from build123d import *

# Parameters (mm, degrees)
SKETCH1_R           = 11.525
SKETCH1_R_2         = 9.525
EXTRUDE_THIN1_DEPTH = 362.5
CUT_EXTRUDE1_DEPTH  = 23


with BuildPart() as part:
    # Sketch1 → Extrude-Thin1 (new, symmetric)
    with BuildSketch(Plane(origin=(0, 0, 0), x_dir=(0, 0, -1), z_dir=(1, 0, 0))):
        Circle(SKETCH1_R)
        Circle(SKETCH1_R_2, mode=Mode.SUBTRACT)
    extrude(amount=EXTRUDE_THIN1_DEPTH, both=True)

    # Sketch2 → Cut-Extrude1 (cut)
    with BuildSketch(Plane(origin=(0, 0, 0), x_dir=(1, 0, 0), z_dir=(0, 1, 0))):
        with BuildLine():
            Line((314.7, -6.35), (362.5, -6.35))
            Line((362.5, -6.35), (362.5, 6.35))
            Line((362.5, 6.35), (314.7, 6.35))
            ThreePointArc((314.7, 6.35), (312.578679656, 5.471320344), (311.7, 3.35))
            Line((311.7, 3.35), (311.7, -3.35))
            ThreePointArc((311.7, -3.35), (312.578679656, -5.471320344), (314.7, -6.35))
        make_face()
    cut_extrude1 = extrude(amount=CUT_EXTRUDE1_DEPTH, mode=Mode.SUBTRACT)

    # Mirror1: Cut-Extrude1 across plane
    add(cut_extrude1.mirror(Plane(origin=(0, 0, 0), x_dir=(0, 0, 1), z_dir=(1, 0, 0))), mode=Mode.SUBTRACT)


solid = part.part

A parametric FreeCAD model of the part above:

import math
import FreeCAD as App
import Part
import Sketcher

V = App.Vector
Q = App.Units.Quantity

doc = App.newDocument("Part")
body = doc.addObject("PartDesign::Body", "Body")

sketch1 = body.newObject("Sketcher::SketchObject", "Sketch")
sketch1.AttachmentSupport = (doc.getObject("YZ_Plane"), [""])
sketch1.MapMode = "FlatFace"
sketch1.addGeometry(Part.Circle(V(0, 0, 0), V(0, 0, 1), 12), False)
sketch1.addGeometry(Part.Circle(V(0, 0, 0), V(0, 0, 1), 10), False)
sketch1.addConstraint(Sketcher.Constraint("Coincident", 0, 3, -1, 1))
sketch1.addConstraint(Sketcher.Constraint("Coincident", 1, 3, -1, 1))
sketch1.addConstraint(Sketcher.Constraint("Diameter", 0, Q("23.05 mm")))
sketch1.addConstraint(Sketcher.Constraint("Diameter", 1, Q("19.05 mm")))
pad1 = body.newObject("PartDesign::Pad", "Pad")
pad1.Profile = sketch1
pad1.Length = 725
pad1.Midplane = True

sketch2 = body.newObject("Sketcher::SketchObject", "Sketch001")
sketch2.AttachmentSupport = (doc.getObject("XZ_Plane"), [""])
sketch2.MapMode = "FlatFace"
sketch2.addGeometry(Part.LineSegment(V(314.7, 6.3, 0), V(362.5, 6.3, 0)), False)
sketch2.addGeometry(Part.LineSegment(V(362.5, 6.3, 0), V(362.5, -6.3, 0)), False)
sketch2.addGeometry(Part.LineSegment(V(362.5, -6.3, 0), V(314.7, -6.3, 0)), False)
sketch2.addGeometry(Part.ArcOfCircle(Part.Circle(V(314.7, -3.4, 0), V(0, 0, 1), 3), math.radians(180), math.radians(270)), False)
sketch2.addGeometry(Part.LineSegment(V(311.7, -3.4, 0), V(311.7, 3.4, 0)), False)
sketch2.addGeometry(Part.ArcOfCircle(Part.Circle(V(314.7, 3.4, 0), V(0, 0, 1), 3), math.radians(90), math.radians(180)), False)
sketch2.addConstraint(Sketcher.Constraint("Coincident", 0, 2, 1, 1))
sketch2.addConstraint(Sketcher.Constraint("Coincident", 1, 2, 2, 1))
sketch2.addConstraint(Sketcher.Constraint("Tangent", 2, 2, 3, 2))
sketch2.addConstraint(Sketcher.Constraint("Tangent", 3, 1, 4, 1))
sketch2.addConstraint(Sketcher.Constraint("Tangent", 4, 2, 5, 2))
sketch2.addConstraint(Sketcher.Constraint("Tangent", 5, 1, 0, 1))
sketch2.addConstraint(Sketcher.Constraint("Horizontal", 0))
sketch2.addConstraint(Sketcher.Constraint("Vertical", 1))
sketch2.addConstraint(Sketcher.Constraint("Horizontal", 2))
sketch2.addConstraint(Sketcher.Constraint("Vertical", 4))
sketch2.addConstraint(Sketcher.Constraint("Equal", 3, 5))
sketch2.addConstraint(Sketcher.Constraint("Radius", 3, Q("3 mm")))
sketch2.addConstraint(Sketcher.Constraint("DistanceX", 0, 1, 0, 2, Q("47.8 mm")))
sketch2.addConstraint(Sketcher.Constraint("DistanceY", 1, 2, 1, 1, Q("12.7 mm")))
sketch2.addConstraint(Sketcher.Constraint("DistanceX", -1, 1, 3, 3, Q("314.7 mm")))
sketch2.addConstraint(Sketcher.Constraint("DistanceY", 3, 3, -1, 1, Q("3.35 mm")))
pocket1 = body.newObject("PartDesign::Pocket", "Pocket")
pocket1.Profile = sketch2
pocket1.Length = 23
doc.recompute()

mirrored = body.newObject("PartDesign::Mirrored", "Mirrored")
mirrored.Originals = [pocket1]
mirrored.MirrorPlane = (doc.getObject("YZ_Plane"), [""])
body.Tip = mirrored

doc.recompute()
